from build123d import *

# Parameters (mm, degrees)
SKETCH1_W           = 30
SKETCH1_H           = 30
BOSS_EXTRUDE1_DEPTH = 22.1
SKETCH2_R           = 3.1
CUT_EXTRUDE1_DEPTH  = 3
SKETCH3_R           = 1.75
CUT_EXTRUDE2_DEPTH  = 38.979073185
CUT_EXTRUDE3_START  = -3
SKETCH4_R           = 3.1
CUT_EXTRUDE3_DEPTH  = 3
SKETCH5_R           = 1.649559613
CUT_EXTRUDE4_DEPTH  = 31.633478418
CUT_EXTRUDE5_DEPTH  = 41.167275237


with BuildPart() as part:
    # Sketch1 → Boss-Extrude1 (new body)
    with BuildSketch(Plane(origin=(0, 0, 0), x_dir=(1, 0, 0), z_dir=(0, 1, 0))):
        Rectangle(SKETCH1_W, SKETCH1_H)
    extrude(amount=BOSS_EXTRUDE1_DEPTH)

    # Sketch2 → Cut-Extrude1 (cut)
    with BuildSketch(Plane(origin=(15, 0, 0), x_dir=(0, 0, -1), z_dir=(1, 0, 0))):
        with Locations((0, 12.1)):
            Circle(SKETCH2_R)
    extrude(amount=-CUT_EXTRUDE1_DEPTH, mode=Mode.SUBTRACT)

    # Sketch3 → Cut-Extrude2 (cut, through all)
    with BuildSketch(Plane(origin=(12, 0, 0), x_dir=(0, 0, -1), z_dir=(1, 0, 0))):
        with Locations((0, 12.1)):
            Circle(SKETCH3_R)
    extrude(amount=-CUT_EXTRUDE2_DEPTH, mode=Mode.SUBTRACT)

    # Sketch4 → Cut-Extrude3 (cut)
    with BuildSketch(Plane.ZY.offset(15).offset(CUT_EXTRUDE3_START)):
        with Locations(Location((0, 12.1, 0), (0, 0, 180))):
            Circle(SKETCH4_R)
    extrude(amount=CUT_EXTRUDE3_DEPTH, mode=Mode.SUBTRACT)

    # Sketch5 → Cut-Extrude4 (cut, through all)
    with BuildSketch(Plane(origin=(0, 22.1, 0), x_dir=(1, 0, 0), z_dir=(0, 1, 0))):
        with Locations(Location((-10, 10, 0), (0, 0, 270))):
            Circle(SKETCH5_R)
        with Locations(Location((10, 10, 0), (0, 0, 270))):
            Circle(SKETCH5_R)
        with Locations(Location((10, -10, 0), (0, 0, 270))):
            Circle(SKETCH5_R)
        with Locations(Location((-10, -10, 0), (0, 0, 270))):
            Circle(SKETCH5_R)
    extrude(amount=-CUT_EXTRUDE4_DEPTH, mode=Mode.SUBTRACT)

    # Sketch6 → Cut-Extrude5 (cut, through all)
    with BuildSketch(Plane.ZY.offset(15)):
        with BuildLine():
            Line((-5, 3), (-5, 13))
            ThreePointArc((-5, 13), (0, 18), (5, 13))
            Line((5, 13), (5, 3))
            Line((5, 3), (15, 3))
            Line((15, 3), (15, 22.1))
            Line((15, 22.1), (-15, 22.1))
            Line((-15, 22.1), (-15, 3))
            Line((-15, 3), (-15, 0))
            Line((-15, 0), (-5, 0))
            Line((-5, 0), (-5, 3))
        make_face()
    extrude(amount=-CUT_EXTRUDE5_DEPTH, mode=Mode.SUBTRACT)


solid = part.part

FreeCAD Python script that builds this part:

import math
import FreeCAD as App
import Part
import Sketcher
Q = App.Units.Quantity

doc = App.newDocument("Part")
body = doc.addObject("PartDesign::Body", "Body")

sketch1 = body.newObject("Sketcher::SketchObject", "Sketch")
sketch1.AttachmentSupport = (doc.getObject("XZ_Plane"), [""])
sketch1.MapMode = "FlatFace"
sketch1.addGeometry([
    Part.LineSegment(App.Vector(-15, -15, 0), App.Vector(-15, 15, 0)),
    Part.LineSegment(App.Vector(-15, 15, 0), App.Vector(15, 15, 0)),
    Part.LineSegment(App.Vector(15, 15, 0), App.Vector(15, -15, 0)),
    Part.LineSegment(App.Vector(15, -15, 0), App.Vector(-15, -15, 0)),
], False)
sketch1.addConstraint([
    Sketcher.Constraint("Coincident", 0, 2, 1, 1),
    Sketcher.Constraint("Coincident", 1, 2, 2, 1),
    Sketcher.Constraint("Coincident", 2, 2, 3, 1),
    Sketcher.Constraint("Coincident", 3, 2, 0, 1),
    Sketcher.Constraint("Vertical", 0),
    Sketcher.Constraint("Horizontal", 1),
    Sketcher.Constraint("Vertical", 2),
    Sketcher.Constraint("Horizontal", 3),
    Sketcher.Constraint("Symmetric", 0, 2, 2, 2, -1, 1),
    Sketcher.Constraint("Equal", 3, 0),
    Sketcher.Constraint("DistanceX", 1, 1, 1, 2, Q("30 mm")),
])
pad1 = body.newObject("PartDesign::Pad", "Pad")
pad1.Profile = sketch1
pad1.Length = 22.1
pad1.Reversed = True

sketch2 = body.newObject("Sketcher::SketchObject", "Sketch001")
sketch2.AttachmentSupport = (doc.getObject("YZ_Plane"), [""])
sketch2.MapMode = "FlatFace"
sketch2.AttachmentOffset = App.Placement(App.Vector(0, 0, 15), App.Rotation())
sketch2.addGeometry(Part.Circle(App.Vector(12.1, 0, 0), App.Vector(0, 0, 1), 3.1), False)
sketch2.addConstraint([
    Sketcher.Constraint("PointOnObject", 0, 3, -1),
    Sketcher.Constraint("Diameter", 0, Q("6.2 mm")),
    Sketcher.Constraint("DistanceX", -1, 1, 0, 3, Q("12.1 mm")),
])
pocket1 = body.newObject("PartDesign::Pocket", "Pocket")
pocket1.Profile = sketch2
pocket1.Length = 3

sketch3 = body.newObject("Sketcher::SketchObject", "Sketch002")
sketch3.AttachmentSupport = (doc.getObject("YZ_Plane"), [""])
sketch3.MapMode = "FlatFace"
sketch3.AttachmentOffset = App.Placement(App.Vector(0, 0, 12), App.Rotation())
sketch3.addGeometry(Part.Circle(App.Vector(12.1, 0, 0), App.Vector(0, 0, 1), 1.8), False)
sketch3.addConstraint([
    Sketcher.Constraint("PointOnObject", 0, 3, -1),
    Sketcher.Constraint("Diameter", 0, Q("3.5 mm")),
    Sketcher.Constraint("DistanceX", -1, 1, 0, 3, Q("12.1 mm")),
])
pocket2 = body.newObject("PartDesign::Pocket", "Pocket001")
pocket2.Profile = sketch3
pocket2.Type = "ThroughAll"

sketch4 = body.newObject("Sketcher::SketchObject", "Sketch003")
sketch4.AttachmentSupport = (doc.getObject("YZ_Plane"), [""])
sketch4.MapMode = "FlatFace"
sketch4.AttachmentOffset = App.Placement(App.Vector(0, 0, -12), App.Rotation())
sketch4.addGeometry(Part.Circle(App.Vector(12.1, 0, 0), App.Vector(0, 0, 1), 3.1), False)
sketch4.addConstraint([
    Sketcher.Constraint("PointOnObject", 0, 3, -1),
    Sketcher.Constraint("Diameter", 0, Q("6.2 mm")),
    Sketcher.Constraint("DistanceX", -1, 1, 0, 3, Q("12.1 mm")),
])
pocket3 = body.newObject("PartDesign::Pocket", "Pocket002")
pocket3.Profile = sketch4
pocket3.Length = 3

sketch5 = body.newObject("Sketcher::SketchObject", "Sketch004")
sketch5.AttachmentSupport = (doc.getObject("XZ_Plane"), [""])
sketch5.MapMode = "FlatFace"
sketch5.AttachmentOffset = App.Placement(App.Vector(0, 0, -22.1), App.Rotation())
sketch5.addGeometry([
    Part.Circle(App.Vector(-10, -10, 0), App.Vector(0, 0, 1), 1.6),
    Part.Circle(App.Vector(10, -10, 0), App.Vector(0, 0, 1), 1.6),
    Part.Circle(App.Vector(10, 10, 0), App.Vector(0, 0, 1), 1.6),
    Part.Circle(App.Vector(-10, 10, 0), App.Vector(0, 0, 1), 1.6),
], False)
sketch5.addConstraint([
    Sketcher.Constraint("Equal", 0, 1),
    Sketcher.Constraint("Equal", 1, 2),
    Sketcher.Constraint("Equal", 2, 3),
    Sketcher.Constraint("Symmetric", 0, 3, 2, 3, -1, 1),
    Sketcher.Constraint("Symmetric", 1, 3, 3, 3, -1, 1),
    Sketcher.Constraint("Symmetric", 0, 3, 1, 3, -2),
    Sketcher.Constraint("DistanceX", 0, 3, -1, 1, Q("10 mm")),
    Sketcher.Constraint("DistanceY", 0, 3, -1, 1, Q("10 mm")),
    Sketcher.Constraint("Diameter", 0, Q("3.299119 mm")),
])
pocket4 = body.newObject("PartDesign::Pocket", "Pocket003")
pocket4.Profile = sketch5
pocket4.Type = "ThroughAll"
pocket4.Reversed = True

sketch6 = body.newObject("Sketcher::SketchObject", "Sketch005")
sketch6.AttachmentSupport = (doc.getObject("YZ_Plane"), [""])
sketch6.MapMode = "FlatFace"
sketch6.AttachmentOffset = App.Placement(App.Vector(0, 0, -15), App.Rotation())
sketch6.addGeometry([
    Part.ArcOfCircle(Part.Circle(App.Vector(13, 0, 0), App.Vector(0, 0, 1), 5), math.radians(-90), math.radians(90)),
    Part.LineSegment(App.Vector(13, 5, 0), App.Vector(3, 5, 0)),
    Part.LineSegment(App.Vector(3, 5, 0), App.Vector(3, 15, 0)),
    Part.LineSegment(App.Vector(3, 15, 0), App.Vector(22, 15, 0)),
    Part.LineSegment(App.Vector(22, 15, 0), App.Vector(22, -15, 0)),
    Part.LineSegment(App.Vector(22, -15, 0), App.Vector(0, -15, 0)),
    Part.LineSegment(App.Vector(0, -15, 0), App.Vector(0, -5, 0)),
    Part.LineSegment(App.Vector(0, -5, 0), App.Vector(13, -5, 0)),
], False)
sketch6.addConstraint([
    Sketcher.Constraint("Tangent", 0, 2, 1, 1),
    Sketcher.Constraint("Coincident", 1, 2, 2, 1),
    Sketcher.Constraint("Coincident", 2, 2, 3, 1),
    Sketcher.Constraint("Coincident", 3, 2, 4, 1),
    Sketcher.Constraint("Coincident", 4, 2, 5, 1),
    Sketcher.Constraint("Coincident", 5, 2, 6, 1),
    Sketcher.Constraint("Coincident", 6, 2, 7, 1),
    Sketcher.Constraint("Tangent", 7, 2, 0, 1),
    Sketcher.Constraint("Horizontal", 1),
    Sketcher.Constraint("Vertical", 2),
    Sketcher.Constraint("Horizontal", 3),
    Sketcher.Constraint("Vertical", 4),
    Sketcher.Constraint("Horizontal", 5),
    Sketcher.Constraint("Vertical", 6),
    Sketcher.Constraint("Horizontal", 7),
    Sketcher.Constraint("PointOnObject", 0, 3, -1),
    Sketcher.Constraint("PointOnObject", 5, 2, -2),
    Sketcher.Constraint("Equal", 1, 2),
    Sketcher.Constraint("Equal", 2, 6),
    Sketcher.Constraint("Radius", 0, Q("5 mm")),
    Sketcher.Constraint("DistanceX", 1, 2, 1, 1, Q("10 mm")),
    Sketcher.Constraint("DistanceX", 7, 1, 7, 2, Q("13 mm")),
    Sketcher.Constraint("DistanceX", 3, 1, 3, 2, Q("19.1 mm")),
])
pocket5 = body.newObject("PartDesign::Pocket", "Pocket004")
pocket5.Profile = sketch6
pocket5.Type = "ThroughAll"
pocket5.Reversed = True

doc.recompute()
